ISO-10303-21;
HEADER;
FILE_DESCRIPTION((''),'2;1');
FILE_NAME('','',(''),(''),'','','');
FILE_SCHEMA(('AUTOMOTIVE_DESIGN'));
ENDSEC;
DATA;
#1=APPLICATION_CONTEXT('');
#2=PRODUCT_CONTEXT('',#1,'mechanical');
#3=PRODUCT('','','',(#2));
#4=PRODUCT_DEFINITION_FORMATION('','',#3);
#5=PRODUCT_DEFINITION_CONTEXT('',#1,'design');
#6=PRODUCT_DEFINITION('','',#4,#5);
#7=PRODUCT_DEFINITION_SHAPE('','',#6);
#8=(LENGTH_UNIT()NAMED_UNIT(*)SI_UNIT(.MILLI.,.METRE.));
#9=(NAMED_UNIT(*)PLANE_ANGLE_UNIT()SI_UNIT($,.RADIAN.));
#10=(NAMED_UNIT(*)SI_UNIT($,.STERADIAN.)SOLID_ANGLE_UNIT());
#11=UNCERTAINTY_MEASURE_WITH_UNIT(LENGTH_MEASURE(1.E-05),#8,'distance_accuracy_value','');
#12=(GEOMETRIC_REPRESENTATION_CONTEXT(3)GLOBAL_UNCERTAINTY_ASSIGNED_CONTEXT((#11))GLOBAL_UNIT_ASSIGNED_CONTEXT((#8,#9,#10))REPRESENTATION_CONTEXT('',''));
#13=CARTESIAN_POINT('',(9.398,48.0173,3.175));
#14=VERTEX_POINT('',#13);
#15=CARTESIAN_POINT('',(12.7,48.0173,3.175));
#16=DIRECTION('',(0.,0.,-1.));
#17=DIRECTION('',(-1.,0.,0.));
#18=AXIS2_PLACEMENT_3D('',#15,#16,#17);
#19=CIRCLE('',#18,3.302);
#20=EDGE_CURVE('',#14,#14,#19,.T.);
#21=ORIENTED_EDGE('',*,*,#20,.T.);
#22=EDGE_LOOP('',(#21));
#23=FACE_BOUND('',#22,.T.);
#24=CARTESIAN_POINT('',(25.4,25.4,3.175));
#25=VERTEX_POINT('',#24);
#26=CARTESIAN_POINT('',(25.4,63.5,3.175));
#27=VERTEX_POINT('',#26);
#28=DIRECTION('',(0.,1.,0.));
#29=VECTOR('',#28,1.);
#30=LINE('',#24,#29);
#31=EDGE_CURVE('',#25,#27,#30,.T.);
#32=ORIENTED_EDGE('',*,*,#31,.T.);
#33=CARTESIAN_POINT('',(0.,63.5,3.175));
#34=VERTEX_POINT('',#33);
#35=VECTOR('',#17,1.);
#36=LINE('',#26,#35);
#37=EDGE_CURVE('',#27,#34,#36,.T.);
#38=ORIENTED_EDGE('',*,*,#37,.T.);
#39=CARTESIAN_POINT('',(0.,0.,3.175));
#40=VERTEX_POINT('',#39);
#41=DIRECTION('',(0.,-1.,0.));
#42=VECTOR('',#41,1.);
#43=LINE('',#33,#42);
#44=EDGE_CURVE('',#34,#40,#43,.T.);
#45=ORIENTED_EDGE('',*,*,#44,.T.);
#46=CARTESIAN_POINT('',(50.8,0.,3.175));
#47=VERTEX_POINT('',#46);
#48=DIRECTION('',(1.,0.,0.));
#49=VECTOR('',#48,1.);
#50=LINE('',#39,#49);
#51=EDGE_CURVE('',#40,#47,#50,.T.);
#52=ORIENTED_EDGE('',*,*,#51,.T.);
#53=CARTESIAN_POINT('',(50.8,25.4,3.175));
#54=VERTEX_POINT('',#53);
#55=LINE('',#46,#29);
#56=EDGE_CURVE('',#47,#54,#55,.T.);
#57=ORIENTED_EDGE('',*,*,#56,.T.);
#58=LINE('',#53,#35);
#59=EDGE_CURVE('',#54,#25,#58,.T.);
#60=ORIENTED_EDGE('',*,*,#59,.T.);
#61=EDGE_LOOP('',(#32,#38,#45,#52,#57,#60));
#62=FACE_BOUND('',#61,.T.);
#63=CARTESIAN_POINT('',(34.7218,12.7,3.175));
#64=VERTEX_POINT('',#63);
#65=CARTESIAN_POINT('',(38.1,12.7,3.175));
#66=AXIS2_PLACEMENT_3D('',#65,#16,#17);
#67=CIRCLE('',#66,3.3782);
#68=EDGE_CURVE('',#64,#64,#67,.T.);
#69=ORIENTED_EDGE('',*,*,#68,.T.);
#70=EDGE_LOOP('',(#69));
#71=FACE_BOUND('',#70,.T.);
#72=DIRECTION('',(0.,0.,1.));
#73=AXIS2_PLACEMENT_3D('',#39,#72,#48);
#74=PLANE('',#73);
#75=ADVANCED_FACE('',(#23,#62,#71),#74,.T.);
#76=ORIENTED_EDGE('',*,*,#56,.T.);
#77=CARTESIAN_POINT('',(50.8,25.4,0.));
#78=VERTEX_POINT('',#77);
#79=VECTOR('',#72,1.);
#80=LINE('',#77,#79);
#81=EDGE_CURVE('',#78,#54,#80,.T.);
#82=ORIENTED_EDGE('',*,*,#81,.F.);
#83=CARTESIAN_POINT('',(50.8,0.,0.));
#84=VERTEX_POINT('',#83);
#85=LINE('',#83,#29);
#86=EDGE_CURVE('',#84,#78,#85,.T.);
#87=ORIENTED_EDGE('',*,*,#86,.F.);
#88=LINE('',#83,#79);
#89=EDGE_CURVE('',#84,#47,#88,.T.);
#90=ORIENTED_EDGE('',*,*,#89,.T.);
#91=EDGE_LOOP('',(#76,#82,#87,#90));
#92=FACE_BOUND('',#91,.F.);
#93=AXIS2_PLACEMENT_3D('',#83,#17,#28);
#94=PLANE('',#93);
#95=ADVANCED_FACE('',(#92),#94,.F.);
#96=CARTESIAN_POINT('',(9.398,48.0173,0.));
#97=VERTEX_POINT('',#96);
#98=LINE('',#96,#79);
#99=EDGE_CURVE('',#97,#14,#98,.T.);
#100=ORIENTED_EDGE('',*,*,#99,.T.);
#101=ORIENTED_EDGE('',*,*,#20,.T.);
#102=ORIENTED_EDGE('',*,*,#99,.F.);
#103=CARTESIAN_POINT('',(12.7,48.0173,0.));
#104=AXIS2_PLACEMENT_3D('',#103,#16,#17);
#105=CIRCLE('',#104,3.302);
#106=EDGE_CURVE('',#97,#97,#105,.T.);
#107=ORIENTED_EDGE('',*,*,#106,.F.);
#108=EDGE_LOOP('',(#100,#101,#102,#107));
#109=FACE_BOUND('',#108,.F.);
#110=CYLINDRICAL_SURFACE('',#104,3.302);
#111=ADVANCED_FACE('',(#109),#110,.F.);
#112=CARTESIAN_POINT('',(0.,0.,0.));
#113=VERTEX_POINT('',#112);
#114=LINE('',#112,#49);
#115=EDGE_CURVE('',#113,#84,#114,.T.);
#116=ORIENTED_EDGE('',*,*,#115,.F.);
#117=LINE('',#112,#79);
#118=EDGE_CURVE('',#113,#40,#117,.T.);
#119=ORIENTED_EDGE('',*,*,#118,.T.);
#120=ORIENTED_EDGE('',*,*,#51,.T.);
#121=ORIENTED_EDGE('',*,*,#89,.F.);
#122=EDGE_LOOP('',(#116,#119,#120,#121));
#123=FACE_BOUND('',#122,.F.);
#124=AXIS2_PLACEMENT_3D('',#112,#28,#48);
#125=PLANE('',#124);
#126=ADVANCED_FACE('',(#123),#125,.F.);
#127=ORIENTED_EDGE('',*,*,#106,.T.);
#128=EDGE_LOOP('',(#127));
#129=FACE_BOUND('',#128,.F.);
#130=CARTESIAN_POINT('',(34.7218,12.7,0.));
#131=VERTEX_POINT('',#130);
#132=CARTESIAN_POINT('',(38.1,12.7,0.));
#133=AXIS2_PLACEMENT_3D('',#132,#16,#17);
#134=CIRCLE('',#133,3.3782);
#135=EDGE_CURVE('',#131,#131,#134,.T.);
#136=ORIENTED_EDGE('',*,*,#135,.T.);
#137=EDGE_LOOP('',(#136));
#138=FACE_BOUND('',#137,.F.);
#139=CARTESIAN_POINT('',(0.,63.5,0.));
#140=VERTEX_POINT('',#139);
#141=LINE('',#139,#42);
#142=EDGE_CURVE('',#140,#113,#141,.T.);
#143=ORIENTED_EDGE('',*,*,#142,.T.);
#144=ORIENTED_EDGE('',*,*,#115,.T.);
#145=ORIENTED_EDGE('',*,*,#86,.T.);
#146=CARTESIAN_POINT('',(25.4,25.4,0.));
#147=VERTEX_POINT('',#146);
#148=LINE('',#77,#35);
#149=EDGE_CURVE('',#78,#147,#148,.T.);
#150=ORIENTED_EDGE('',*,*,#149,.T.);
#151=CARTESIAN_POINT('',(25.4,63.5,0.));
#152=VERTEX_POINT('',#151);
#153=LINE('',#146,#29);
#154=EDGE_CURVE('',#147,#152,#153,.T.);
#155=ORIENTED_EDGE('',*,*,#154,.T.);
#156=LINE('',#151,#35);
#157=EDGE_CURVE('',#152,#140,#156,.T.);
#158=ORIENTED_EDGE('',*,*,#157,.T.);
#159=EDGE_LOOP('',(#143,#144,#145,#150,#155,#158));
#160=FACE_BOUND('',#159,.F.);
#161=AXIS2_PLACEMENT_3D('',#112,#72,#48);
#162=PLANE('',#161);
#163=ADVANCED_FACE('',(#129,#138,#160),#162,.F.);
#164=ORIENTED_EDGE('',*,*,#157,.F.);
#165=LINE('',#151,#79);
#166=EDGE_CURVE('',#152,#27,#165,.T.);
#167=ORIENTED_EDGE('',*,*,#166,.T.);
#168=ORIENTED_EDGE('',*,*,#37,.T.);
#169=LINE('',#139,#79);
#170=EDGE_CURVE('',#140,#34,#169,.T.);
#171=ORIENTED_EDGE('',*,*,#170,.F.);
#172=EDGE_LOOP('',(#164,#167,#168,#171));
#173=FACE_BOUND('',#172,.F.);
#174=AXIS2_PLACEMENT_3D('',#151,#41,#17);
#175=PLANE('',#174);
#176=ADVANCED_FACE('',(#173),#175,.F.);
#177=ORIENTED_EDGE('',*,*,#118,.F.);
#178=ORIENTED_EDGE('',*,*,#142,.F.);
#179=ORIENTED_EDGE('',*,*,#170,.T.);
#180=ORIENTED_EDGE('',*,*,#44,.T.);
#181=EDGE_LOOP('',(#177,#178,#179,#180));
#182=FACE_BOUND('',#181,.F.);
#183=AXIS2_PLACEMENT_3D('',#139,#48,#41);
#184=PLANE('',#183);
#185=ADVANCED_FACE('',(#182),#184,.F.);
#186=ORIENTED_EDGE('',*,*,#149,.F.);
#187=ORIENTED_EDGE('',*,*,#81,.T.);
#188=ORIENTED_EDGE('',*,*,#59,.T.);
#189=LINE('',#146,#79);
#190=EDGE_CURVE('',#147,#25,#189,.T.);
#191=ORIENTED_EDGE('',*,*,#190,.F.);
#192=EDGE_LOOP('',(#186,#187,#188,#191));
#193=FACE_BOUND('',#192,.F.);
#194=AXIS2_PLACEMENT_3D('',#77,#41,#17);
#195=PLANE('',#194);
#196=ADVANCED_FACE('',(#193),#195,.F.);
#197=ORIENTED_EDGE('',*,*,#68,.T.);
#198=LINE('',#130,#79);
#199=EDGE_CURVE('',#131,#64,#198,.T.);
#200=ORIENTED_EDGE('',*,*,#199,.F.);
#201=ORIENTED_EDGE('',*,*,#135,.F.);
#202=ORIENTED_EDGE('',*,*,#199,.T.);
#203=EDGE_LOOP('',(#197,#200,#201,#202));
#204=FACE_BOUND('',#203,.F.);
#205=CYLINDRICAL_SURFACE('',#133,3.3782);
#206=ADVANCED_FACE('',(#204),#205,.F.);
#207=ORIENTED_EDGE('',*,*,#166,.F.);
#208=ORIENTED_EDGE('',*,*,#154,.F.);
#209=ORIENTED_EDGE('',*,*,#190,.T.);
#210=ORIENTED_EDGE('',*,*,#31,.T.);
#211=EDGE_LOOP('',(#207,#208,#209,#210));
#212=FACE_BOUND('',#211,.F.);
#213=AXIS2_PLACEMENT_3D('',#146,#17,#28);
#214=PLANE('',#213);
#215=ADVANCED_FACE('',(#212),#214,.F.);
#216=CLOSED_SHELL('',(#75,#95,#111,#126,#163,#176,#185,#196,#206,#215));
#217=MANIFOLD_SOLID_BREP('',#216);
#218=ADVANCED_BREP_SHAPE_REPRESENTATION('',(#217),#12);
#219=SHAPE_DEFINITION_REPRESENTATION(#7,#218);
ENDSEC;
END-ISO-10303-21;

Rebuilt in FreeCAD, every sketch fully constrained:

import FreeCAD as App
import Part
import Sketcher

V = App.Vector
Q = App.Units.Quantity


def add_polygon(sketch, points):
    """Adds a closed chain of lines whose ends are joined by coincident constraints."""
    first, n = sketch.GeometryCount, len(points)
    for a, b in zip(points, points[1:] + points[:1]):
        sketch.addGeometry(Part.LineSegment(App.Vector(*a, 0), App.Vector(*b, 0)), False)
    for i in range(n):
        sketch.addConstraint(Sketcher.Constraint("Coincident", first + i, 2, first + (i + 1) % n, 1))

doc = App.newDocument("Part")
body = doc.addObject("PartDesign::Body", "Body")

# Sketch on XY plane
sketch1 = doc.addObject("Sketcher::SketchObject", "Sketch")
body.addObject(sketch1)
sketch1.AttachmentSupport = (doc.XY_Plane, [""])
sketch1.MapMode = "FlatFace"
add_polygon(sketch1, [(0, 64), (0, 0), (51, 0), (51, 25), (25, 25), (25, 64)])  # lines 0-5
sketch1.addConstraint([
    Sketcher.Constraint("Vertical", 0),
    Sketcher.Constraint("Horizontal", 1),
    Sketcher.Constraint("Vertical", 2),
    Sketcher.Constraint("Horizontal", 3),
    Sketcher.Constraint("Vertical", 4),
    Sketcher.Constraint("Horizontal", 5),
    Sketcher.Constraint("Coincident", 0, 2, -1, 1),
    Sketcher.Constraint("Equal", 3, 5),
    Sketcher.Constraint("Equal", 5, 2),
    Sketcher.Constraint("DistanceX", 1, 1, 1, 2, Q("2 in")),
    Sketcher.Constraint("DistanceY", 4, 1, 4, 2, Q("1.5 in")),
])
pad1 = doc.addObject("PartDesign::Pad", "Pad")
body.addObject(pad1)
pad1.Profile = sketch1
pad1.Length = Q("0.125 in")

# Sketch on XY plane
sketch2 = doc.addObject("Sketcher::SketchObject", "Sketch001")
body.addObject(sketch2)
sketch2.AttachmentSupport = (doc.XY_Plane, [""])
sketch2.MapMode = "FlatFace"
sketch2.addGeometry([
    Part.Circle(V(38.1, 12.7, 0), V(0, 0, 1), 3.4),
    Part.Circle(V(12.7, 48, 0), V(0, 0, 1), 3.3),
], False)
sketch2.addConstraint([
    Sketcher.Constraint("Diameter", 1, Q("0.26 in")),
    Sketcher.Constraint("Diameter", 0, Q("0.266 in")),
    Sketcher.Constraint("DistanceX", 1, 3, 0, 3, Q("1 in")),
    Sketcher.Constraint("DistanceX", -1, 1, 0, 3, Q("1.5 in")),
    Sketcher.Constraint("DistanceY", -1, 1, 0, 3, Q("0.5 in")),
    Sketcher.Constraint("DistanceY", -1, 1, 1, 3, 48.0173),
])
pocket1 = doc.addObject("PartDesign::Pocket", "Pocket")
body.addObject(pocket1)
pocket1.Profile = sketch2
pocket1.Length = Q("1 in")
pocket1.Reversed = True

doc.recompute()
